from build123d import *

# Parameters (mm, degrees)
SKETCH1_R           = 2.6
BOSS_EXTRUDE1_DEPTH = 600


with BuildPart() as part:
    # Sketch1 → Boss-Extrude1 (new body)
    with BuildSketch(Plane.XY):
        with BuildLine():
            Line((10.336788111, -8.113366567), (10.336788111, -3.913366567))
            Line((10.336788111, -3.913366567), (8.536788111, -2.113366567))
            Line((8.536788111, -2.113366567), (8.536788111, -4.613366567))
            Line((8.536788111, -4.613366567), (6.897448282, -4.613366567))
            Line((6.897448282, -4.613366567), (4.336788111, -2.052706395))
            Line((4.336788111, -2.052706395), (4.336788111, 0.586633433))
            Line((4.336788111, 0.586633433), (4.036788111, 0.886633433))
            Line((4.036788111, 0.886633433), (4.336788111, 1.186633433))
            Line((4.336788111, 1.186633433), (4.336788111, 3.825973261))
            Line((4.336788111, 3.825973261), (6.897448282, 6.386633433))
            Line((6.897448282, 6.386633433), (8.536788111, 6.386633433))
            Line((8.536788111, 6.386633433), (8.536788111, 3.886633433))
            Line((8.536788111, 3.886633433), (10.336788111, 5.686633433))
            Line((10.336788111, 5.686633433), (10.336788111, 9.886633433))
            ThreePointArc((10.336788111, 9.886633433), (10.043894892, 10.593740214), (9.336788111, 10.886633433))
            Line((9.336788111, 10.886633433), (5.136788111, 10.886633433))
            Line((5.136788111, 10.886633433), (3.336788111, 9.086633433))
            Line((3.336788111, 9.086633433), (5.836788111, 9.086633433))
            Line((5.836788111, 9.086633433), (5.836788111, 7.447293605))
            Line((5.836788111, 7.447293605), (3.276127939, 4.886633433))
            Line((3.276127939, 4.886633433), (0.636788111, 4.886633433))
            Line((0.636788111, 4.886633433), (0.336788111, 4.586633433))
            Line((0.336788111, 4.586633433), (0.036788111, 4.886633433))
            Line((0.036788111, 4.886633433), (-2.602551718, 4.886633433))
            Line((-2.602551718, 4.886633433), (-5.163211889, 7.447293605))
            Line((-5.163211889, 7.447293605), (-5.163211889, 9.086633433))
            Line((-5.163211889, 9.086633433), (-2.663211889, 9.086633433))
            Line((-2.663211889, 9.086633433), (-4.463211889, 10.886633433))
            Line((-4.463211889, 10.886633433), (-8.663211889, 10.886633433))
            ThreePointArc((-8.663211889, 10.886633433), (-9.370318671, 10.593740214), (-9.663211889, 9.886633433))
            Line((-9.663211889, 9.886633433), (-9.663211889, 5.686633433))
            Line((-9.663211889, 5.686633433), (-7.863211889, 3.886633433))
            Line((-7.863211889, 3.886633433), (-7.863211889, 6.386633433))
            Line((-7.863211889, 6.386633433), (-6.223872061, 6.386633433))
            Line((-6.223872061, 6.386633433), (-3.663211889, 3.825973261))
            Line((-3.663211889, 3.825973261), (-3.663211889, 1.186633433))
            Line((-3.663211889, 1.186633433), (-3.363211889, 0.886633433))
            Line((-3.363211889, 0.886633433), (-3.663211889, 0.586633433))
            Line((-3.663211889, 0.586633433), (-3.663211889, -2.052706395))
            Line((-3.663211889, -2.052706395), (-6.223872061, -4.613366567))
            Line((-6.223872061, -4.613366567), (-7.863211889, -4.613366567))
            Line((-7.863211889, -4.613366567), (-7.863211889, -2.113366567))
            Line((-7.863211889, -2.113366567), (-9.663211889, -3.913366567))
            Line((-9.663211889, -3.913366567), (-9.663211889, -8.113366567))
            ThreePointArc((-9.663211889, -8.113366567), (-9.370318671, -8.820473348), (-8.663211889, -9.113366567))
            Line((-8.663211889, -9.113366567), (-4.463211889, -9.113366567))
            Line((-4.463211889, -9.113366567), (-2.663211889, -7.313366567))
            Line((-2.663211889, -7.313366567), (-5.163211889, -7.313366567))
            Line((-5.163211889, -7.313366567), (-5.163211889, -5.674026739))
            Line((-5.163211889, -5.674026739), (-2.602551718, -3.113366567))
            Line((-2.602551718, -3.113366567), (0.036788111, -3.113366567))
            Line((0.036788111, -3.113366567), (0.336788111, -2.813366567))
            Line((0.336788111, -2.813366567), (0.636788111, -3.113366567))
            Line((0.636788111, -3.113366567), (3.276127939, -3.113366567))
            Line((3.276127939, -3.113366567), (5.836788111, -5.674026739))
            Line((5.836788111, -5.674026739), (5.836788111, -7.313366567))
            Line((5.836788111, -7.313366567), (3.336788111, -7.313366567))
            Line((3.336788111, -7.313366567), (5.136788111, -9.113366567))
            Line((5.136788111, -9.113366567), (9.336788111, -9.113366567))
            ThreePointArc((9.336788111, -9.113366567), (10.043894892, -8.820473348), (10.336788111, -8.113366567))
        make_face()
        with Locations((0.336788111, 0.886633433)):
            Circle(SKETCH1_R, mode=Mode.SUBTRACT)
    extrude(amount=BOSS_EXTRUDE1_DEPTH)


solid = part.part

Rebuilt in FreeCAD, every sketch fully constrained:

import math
import FreeCAD as App
import Part
import Sketcher

V = App.Vector
Q = App.Units.Quantity

doc = App.newDocument("Part")
body = doc.addObject("PartDesign::Body", "Body")

# Sketch on XY plane
sketch1 = body.newObject("Sketcher::SketchObject", "Sketch")
sketch1.AttachmentSupport = (doc.getObject("XY_Plane"), [""])
sketch1.MapMode = "FlatFace"
sketch1.addGeometry([
    Part.LineSegment(V(10.34, -8.11, 0), V(10.34, -3.91, 0)),  # 0
    Part.LineSegment(V(10.34, -3.91, 0), V(8.54, -2.11, 0)),  # 1
    Part.LineSegment(V(8.54, -2.11, 0), V(8.54, -4.61, 0)),  # 2
    Part.LineSegment(V(8.54, -4.61, 0), V(6.9, -4.61, 0)),  # 3
    Part.LineSegment(V(6.9, -4.61, 0), V(4.34, -2.05, 0)),  # 4
    Part.LineSegment(V(4.34, -2.05, 0), V(4.34, 0.59, 0)),  # 5
    Part.LineSegment(V(4.34, 0.59, 0), V(4.04, 0.89, 0)),  # 6
    Part.LineSegment(V(4.04, 0.89, 0), V(4.34, 1.19, 0)),  # 7
    Part.LineSegment(V(4.34, 1.19, 0), V(4.34, 3.83, 0)),  # 8
    Part.LineSegment(V(4.34, 3.83, 0), V(6.9, 6.39, 0)),  # 9
    Part.LineSegment(V(6.9, 6.39, 0), V(8.54, 6.39, 0)),  # 10
    Part.LineSegment(V(8.54, 6.39, 0), V(8.54, 3.89, 0)),  # 11
    Part.LineSegment(V(8.54, 3.89, 0), V(10.34, 5.69, 0)),  # 12
    Part.LineSegment(V(10.34, 5.69, 0), V(10.34, 9.89, 0)),  # 13
    Part.ArcOfCircle(Part.Circle(V(9.34, 9.89, 0), V(0, 0, 1), 1), math.radians(0), math.radians(90)),  # 14
    Part.LineSegment(V(9.34, 10.89, 0), V(5.14, 10.89, 0)),  # 15
    Part.LineSegment(V(5.14, 10.89, 0), V(3.34, 9.09, 0)),  # 16
    Part.LineSegment(V(3.34, 9.09, 0), V(5.84, 9.09, 0)),  # 17
    Part.LineSegment(V(5.84, 9.09, 0), V(5.84, 7.45, 0)),  # 18
    Part.LineSegment(V(5.84, 7.45, 0), V(3.28, 4.89, 0)),  # 19
    Part.LineSegment(V(3.28, 4.89, 0), V(0.64, 4.89, 0)),  # 20
    Part.LineSegment(V(0.64, 4.89, 0), V(0.34, 4.59, 0)),  # 21
    Part.LineSegment(V(0.34, 4.59, 0), V(0.04, 4.89, 0)),  # 22
    Part.LineSegment(V(0.04, 4.89, 0), V(-2.6, 4.89, 0)),  # 23
    Part.LineSegment(V(-2.6, 4.89, 0), V(-5.16, 7.45, 0)),  # 24
    Part.LineSegment(V(-5.16, 7.45, 0), V(-5.16, 9.09, 0)),  # 25
    Part.LineSegment(V(-5.16, 9.09, 0), V(-2.66, 9.09, 0)),  # 26
    Part.LineSegment(V(-2.66, 9.09, 0), V(-4.46, 10.89, 0)),  # 27
    Part.LineSegment(V(-4.46, 10.89, 0), V(-8.66, 10.89, 0)),  # 28
    Part.ArcOfCircle(Part.Circle(V(-8.66, 9.89, 0), V(0, 0, 1), 1), math.radians(90), math.radians(180)),  # 29
    Part.LineSegment(V(-9.66, 9.89, 0), V(-9.66, 5.69, 0)),  # 30
    Part.LineSegment(V(-9.66, 5.69, 0), V(-7.86, 3.89, 0)),  # 31
    Part.LineSegment(V(-7.86, 3.89, 0), V(-7.86, 6.39, 0)),  # 32
    Part.LineSegment(V(-7.86, 6.39, 0), V(-6.22, 6.39, 0)),  # 33
    Part.LineSegment(V(-6.22, 6.39, 0), V(-3.66, 3.83, 0)),  # 34
    Part.LineSegment(V(-3.66, 3.83, 0), V(-3.66, 1.19, 0)),  # 35
    Part.LineSegment(V(-3.66, 1.19, 0), V(-3.36, 0.89, 0)),  # 36
    Part.LineSegment(V(-3.36, 0.89, 0), V(-3.66, 0.59, 0)),  # 37
    Part.LineSegment(V(-3.66, 0.59, 0), V(-3.66, -2.05, 0)),  # 38
    Part.LineSegment(V(-3.66, -2.05, 0), V(-6.22, -4.61, 0)),  # 39
    Part.LineSegment(V(-6.22, -4.61, 0), V(-7.86, -4.61, 0)),  # 40
    Part.LineSegment(V(-7.86, -4.61, 0), V(-7.86, -2.11, 0)),  # 41
    Part.LineSegment(V(-7.86, -2.11, 0), V(-9.66, -3.91, 0)),  # 42
    Part.LineSegment(V(-9.66, -3.91, 0), V(-9.66, -8.11, 0)),  # 43
    Part.ArcOfCircle(Part.Circle(V(-8.66, -8.11, 0), V(0, 0, 1), 1), math.radians(180), math.radians(270)),  # 44
    Part.LineSegment(V(-8.66, -9.11, 0), V(-4.46, -9.11, 0)),  # 45
    Part.LineSegment(V(-4.46, -9.11, 0), V(-2.66, -7.31, 0)),  # 46
    Part.LineSegment(V(-2.66, -7.31, 0), V(-5.16, -7.31, 0)),  # 47
    Part.LineSegment(V(-5.16, -7.31, 0), V(-5.16, -5.67, 0)),  # 48
    Part.LineSegment(V(-5.16, -5.67, 0), V(-2.6, -3.11, 0)),  # 49
    Part.LineSegment(V(-2.6, -3.11, 0), V(0.04, -3.11, 0)),  # 50
    Part.LineSegment(V(0.04, -3.11, 0), V(0.34, -2.81, 0)),  # 51
    Part.LineSegment(V(0.34, -2.81, 0), V(0.64, -3.11, 0)),  # 52
    Part.LineSegment(V(0.64, -3.11, 0), V(3.28, -3.11, 0)),  # 53
    Part.LineSegment(V(3.28, -3.11, 0), V(5.84, -5.67, 0)),  # 54
    Part.LineSegment(V(5.84, -5.67, 0), V(5.84, -7.31, 0)),  # 55
    Part.LineSegment(V(5.84, -7.31, 0), V(3.34, -7.31, 0)),  # 56
    Part.LineSegment(V(3.34, -7.31, 0), V(5.14, -9.11, 0)),  # 57
    Part.LineSegment(V(5.14, -9.11, 0), V(9.34, -9.11, 0)),  # 58
    Part.ArcOfCircle(Part.Circle(V(9.34, -8.11, 0), V(0, 0, 1), 1), math.radians(-90), math.radians(0)),  # 59
    Part.Circle(V(0.34, 0.89, 0), V(0, 0, 1), 2.6),  # 60
], False)
sketch1.addConstraint([
    Sketcher.Constraint("Coincident", 0, 2, 1, 1),
    Sketcher.Constraint("Coincident", 1, 2, 2, 1),
    Sketcher.Constraint("Coincident", 2, 2, 3, 1),
    Sketcher.Constraint("Coincident", 3, 2, 4, 1),
    Sketcher.Constraint("Coincident", 4, 2, 5, 1),
    Sketcher.Constraint("Coincident", 5, 2, 6, 1),
    Sketcher.Constraint("Coincident", 6, 2, 7, 1),
    Sketcher.Constraint("Coincident", 7, 2, 8, 1),
    Sketcher.Constraint("Coincident", 8, 2, 9, 1),
    Sketcher.Constraint("Coincident", 9, 2, 10, 1),
    Sketcher.Constraint("Coincident", 10, 2, 11, 1),
    Sketcher.Constraint("Coincident", 11, 2, 12, 1),
    Sketcher.Constraint("Coincident", 12, 2, 13, 1),
    Sketcher.Constraint("Tangent", 13, 2, 14, 1),
    Sketcher.Constraint("Tangent", 14, 2, 15, 1),
    Sketcher.Constraint("Coincident", 15, 2, 16, 1),
    Sketcher.Constraint("Coincident", 16, 2, 17, 1),
    Sketcher.Constraint("Coincident", 17, 2, 18, 1),
    Sketcher.Constraint("Coincident", 18, 2, 19, 1),
    Sketcher.Constraint("Coincident", 19, 2, 20, 1),
    Sketcher.Constraint("Coincident", 20, 2, 21, 1),
    Sketcher.Constraint("Coincident", 21, 2, 22, 1),
    Sketcher.Constraint("Coincident", 22, 2, 23, 1),
    Sketcher.Constraint("Coincident", 23, 2, 24, 1),
    Sketcher.Constraint("Coincident", 24, 2, 25, 1),
    Sketcher.Constraint("Coincident", 25, 2, 26, 1),
    Sketcher.Constraint("Coincident", 26, 2, 27, 1),
    Sketcher.Constraint("Coincident", 27, 2, 28, 1),
    Sketcher.Constraint("Tangent", 28, 2, 29, 1),
    Sketcher.Constraint("Tangent", 29, 2, 30, 1),
    Sketcher.Constraint("Coincident", 30, 2, 31, 1),
    Sketcher.Constraint("Coincident", 31, 2, 32, 1),
    Sketcher.Constraint("Coincident", 32, 2, 33, 1),
    Sketcher.Constraint("Coincident", 33, 2, 34, 1),
    Sketcher.Constraint("Coincident", 34, 2, 35, 1),
    Sketcher.Constraint("Coincident", 35, 2, 36, 1),
    Sketcher.Constraint("Coincident", 36, 2, 37, 1),
    Sketcher.Constraint("Coincident", 37, 2, 38, 1),
    Sketcher.Constraint("Coincident", 38, 2, 39, 1),
    Sketcher.Constraint("Coincident", 39, 2, 40, 1),
    Sketcher.Constraint("Coincident", 40, 2, 41, 1),
    Sketcher.Constraint("Coincident", 41, 2, 42, 1),
    Sketcher.Constraint("Coincident", 42, 2, 43, 1),
    Sketcher.Constraint("Tangent", 43, 2, 44, 1),
    Sketcher.Constraint("Tangent", 44, 2, 45, 1),
    Sketcher.Constraint("Coincident", 45, 2, 46, 1),
    Sketcher.Constraint("Coincident", 46, 2, 47, 1),
    Sketcher.Constraint("Coincident", 47, 2, 48, 1),
    Sketcher.Constraint("Coincident", 48, 2, 49, 1),
    Sketcher.Constraint("Coincident", 49, 2, 50, 1),
    Sketcher.Constraint("Coincident", 50, 2, 51, 1),
    Sketcher.Constraint("Coincident", 51, 2, 52, 1),
    Sketcher.Constraint("Coincident", 52, 2, 53, 1),
    Sketcher.Constraint("Coincident", 53, 2, 54, 1),
    Sketcher.Constraint("Coincident", 54, 2, 55, 1),
    Sketcher.Constraint("Coincident", 55, 2, 56, 1),
    Sketcher.Constraint("Coincident", 56, 2, 57, 1),
    Sketcher.Constraint("Coincident", 57, 2, 58, 1),
    Sketcher.Constraint("Tangent", 58, 2, 59, 1),
    Sketcher.Constraint("Tangent", 59, 2, 0, 1),
    Sketcher.Constraint("Vertical", 0),
    Sketcher.Constraint("Vertical", 2),
    Sketcher.Constraint("Horizontal", 3),
    Sketcher.Constraint("Vertical", 5),
    Sketcher.Constraint("Vertical", 8),
    Sketcher.Constraint("Horizontal", 10),
    Sketcher.Constraint("Vertical", 11),
    Sketcher.Constraint("Vertical", 13),
    Sketcher.Constraint("Horizontal", 15),
    Sketcher.Constraint("Horizontal", 17),
    Sketcher.Constraint("Vertical", 18),
    Sketcher.Constraint("Horizontal", 20),
    Sketcher.Constraint("Horizontal", 23),
    Sketcher.Constraint("Vertical", 25),
    Sketcher.Constraint("Horizontal", 26),
    Sketcher.Constraint("Horizontal", 28),
    Sketcher.Constraint("Vertical", 30),
    Sketcher.Constraint("Vertical", 32),
    Sketcher.Constraint("Horizontal", 33),
    Sketcher.Constraint("Vertical", 35),
    Sketcher.Constraint("Vertical", 38),
    Sketcher.Constraint("Horizontal", 40),
    Sketcher.Constraint("Vertical", 41),
    Sketcher.Constraint("Vertical", 43),
    Sketcher.Constraint("Horizontal", 45),
    Sketcher.Constraint("Horizontal", 47),
    Sketcher.Constraint("Vertical", 48),
    Sketcher.Constraint("Horizontal", 50),
    Sketcher.Constraint("Horizontal", 53),
    Sketcher.Constraint("Vertical", 55),
    Sketcher.Constraint("Horizontal", 56),
    Sketcher.Constraint("Horizontal", 58),
    Sketcher.Constraint("Equal", 14, 29),
    Sketcher.Constraint("Equal", 29, 44),
    Sketcher.Constraint("Equal", 44, 59),
    Sketcher.Constraint("Parallel", 1, 4),
    Sketcher.Constraint("Parallel", 4, 6),
    Sketcher.Constraint("Perpendicular", 6, 7),
    Sketcher.Constraint("Parallel", 7, 9),
    Sketcher.Constraint("Parallel", 9, 12),
    Sketcher.Constraint("Parallel", 12, 16),
    Sketcher.Constraint("Parallel", 16, 19),
    Sketcher.Constraint("Parallel", 19, 21),
    Sketcher.Constraint("Perpendicular", 21, 22),
    Sketcher.Constraint("Parallel", 22, 24),
    Sketcher.Constraint("Parallel", 24, 27),
    Sketcher.Constraint("Parallel", 27, 31),
    Sketcher.Constraint("Parallel", 31, 34),
    Sketcher.Constraint("Parallel", 34, 36),
    Sketcher.Constraint("Perpendicular", 36, 37),
    Sketcher.Constraint("Parallel", 37, 39),
    Sketcher.Constraint("Parallel", 39, 42),
    Sketcher.Constraint("Parallel", 42, 46),
    Sketcher.Constraint("Parallel", 46, 49),
    Sketcher.Constraint("Parallel", 49, 51),
    Sketcher.Constraint("Perpendicular", 51, 52),
    Sketcher.Constraint("Parallel", 52, 54),
    Sketcher.Constraint("Parallel", 54, 57),
    Sketcher.Constraint("Horizontal", 14, 3, 29, 3),
    Sketcher.Constraint("Horizontal", 44, 3, 59, 3),
    Sketcher.Constraint("Horizontal", 60, 3, 6, 2),
    Sketcher.Constraint("Horizontal", 20, 2, 22, 2),
    Sketcher.Constraint("Horizontal", 18, 2, 24, 2),
    Sketcher.Constraint("Horizontal", 17, 2, 25, 2),
    Sketcher.Constraint("Horizontal", 12, 2, 30, 2),
    Sketcher.Constraint("Horizontal", 11, 2, 31, 2),
    Sketcher.Constraint("Horizontal", 10, 2, 32, 2),
    Sketcher.Constraint("Horizontal", 8, 2, 34, 2),
    Sketcher.Constraint("Horizontal", 7, 2, 35, 2),
    Sketcher.Constraint("Horizontal", 6, 2, 36, 2),
    Sketcher.Constraint("Horizontal", 5, 2, 37, 2),
    Sketcher.Constraint("Horizontal", 4, 2, 38, 2),
    Sketcher.Constraint("Horizontal", 3, 2, 39, 2),
    Sketcher.Constraint("Horizontal", 1, 2, 41, 2),
    Sketcher.Constraint("Horizontal", 0, 2, 42, 2),
    Sketcher.Constraint("Horizontal", 50, 2, 52, 2),
    Sketcher.Constraint("Horizontal", 48, 2, 54, 2),
    Sketcher.Constraint("Horizontal", 47, 2, 55, 2),
    Sketcher.Constraint("Vertical", 29, 3, 44, 3),
    Sketcher.Constraint("Vertical", 14, 3, 59, 3),
    Sketcher.Constraint("Vertical", 5, 2, 7, 2),
    Sketcher.Constraint("Vertical", 3, 2, 9, 2),
    Sketcher.Constraint("Vertical", 2, 2, 10, 2),
    Sketcher.Constraint("Vertical", 60, 3, 21, 2),
    Sketcher.Constraint("Vertical", 35, 2, 37, 2),
    Sketcher.Constraint("Vertical", 27, 2, 45, 2),
    Sketcher.Constraint("Vertical", 26, 2, 46, 2),
    Sketcher.Constraint("Vertical", 25, 2, 47, 2),
    Sketcher.Constraint("Vertical", 23, 2, 49, 2),
    Sketcher.Constraint("Vertical", 22, 2, 50, 2),
    Sketcher.Constraint("Vertical", 21, 2, 51, 2),
    Sketcher.Constraint("Vertical", 19, 2, 53, 2),
    Sketcher.Constraint("Vertical", 16, 2, 56, 2),
    Sketcher.Constraint("Equal", 20, 23),
    Sketcher.Constraint("Equal", 17, 26),
    Sketcher.Constraint("Equal", 15, 28),
    Sketcher.Constraint("Equal", 10, 33),
    Sketcher.Constraint("Equal", 58, 0),
    Sketcher.Constraint("Equal", 56, 2),
    Sketcher.Constraint("Equal", 53, 5),
    Sketcher.Constraint("Equal", 5, 8),
    Sketcher.Constraint("Equal", 2, 11),
    Sketcher.Constraint("Equal", 0, 13),
    Sketcher.Constraint("Equal", 40, 18),
    Sketcher.Constraint("Equal", 25, 48),
    Sketcher.Constraint("Equal", 12, 16),
    Sketcher.Constraint("Equal", 9, 19),
    Sketcher.Constraint("Equal", 7, 21),
    Sketcher.Constraint("Radius", 14, Q("1 mm")),
    Sketcher.Constraint("Diameter", 60, Q("5.2 mm")),
    Sketcher.Constraint("DistanceX", 15, 2, 15, 1, Q("4.2 mm")),
    Sketcher.Constraint("DistanceX", 17, 1, 17, 2, Q("2.5 mm")),
    Sketcher.Constraint("DistanceX", 3, 2, 3, 1, Q("1.63934 mm")),
    Sketcher.Constraint("DistanceX", 20, 2, 20, 1, Q("2.63934 mm")),
    Sketcher.Constraint("Distance", 4, Q("3.62132 mm")),
    Sketcher.Constraint("DistanceX", -1, 1, 14, 3, Q("9.336788 mm")),
    Sketcher.Constraint("DistanceX", 29, 3, -1, 1, Q("8.663212 mm")),
    Sketcher.Constraint("DistanceX", -1, 1, 1, 2, Q("8.536788 mm")),
    Sketcher.Constraint("DistanceY", -1, 1, 14, 3, Q("9.886633 mm")),
])
pad1 = body.newObject("PartDesign::Pad", "Pad")
pad1.Profile = sketch1
pad1.Length = 600

doc.recompute()
